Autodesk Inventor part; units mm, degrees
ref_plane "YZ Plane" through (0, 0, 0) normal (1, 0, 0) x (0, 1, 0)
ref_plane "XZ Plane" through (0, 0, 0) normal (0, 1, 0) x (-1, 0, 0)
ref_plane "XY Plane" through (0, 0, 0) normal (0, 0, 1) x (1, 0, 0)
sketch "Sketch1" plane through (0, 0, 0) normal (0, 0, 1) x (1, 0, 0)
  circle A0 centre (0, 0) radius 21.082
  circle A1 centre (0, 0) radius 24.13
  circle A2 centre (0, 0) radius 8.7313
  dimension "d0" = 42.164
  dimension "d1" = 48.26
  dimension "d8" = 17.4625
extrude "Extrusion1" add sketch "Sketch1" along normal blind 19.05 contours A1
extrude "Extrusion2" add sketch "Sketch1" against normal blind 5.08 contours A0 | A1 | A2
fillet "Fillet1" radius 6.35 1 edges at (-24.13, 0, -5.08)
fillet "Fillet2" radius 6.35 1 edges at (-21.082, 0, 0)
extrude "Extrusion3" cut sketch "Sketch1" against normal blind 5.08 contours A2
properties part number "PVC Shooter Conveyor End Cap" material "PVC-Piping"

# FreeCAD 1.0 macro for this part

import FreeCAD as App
import Part
import Sketcher

V = App.Vector
Q = App.Units.Quantity


def edges_at(feature, points):
    """Names of the edges that pass closest to the given points."""
    edges = feature.Shape.Edges
    near = lambda p: min(range(len(edges)), key=lambda i: edges[i].distToShape(Part.Vertex(*p))[0])
    return sorted({f"Edge{near(p) + 1}" for p in points})

doc = App.newDocument("Part")
body = doc.addObject("PartDesign::Body", "Body")

# Sketch on XY plane
sketch1 = body.newObject("Sketcher::SketchObject", "Sketch")
sketch1.AttachmentSupport = (doc.getObject("XY_Plane"), [""])
sketch1.MapMode = "FlatFace"
sketch1.addGeometry([
    Part.Circle(V(0, 0, 0), V(0, 0, 1), 24),
    Part.Circle(V(0, 0, 0), V(0, 0, 1), 21),
], False)
sketch1.addConstraint([
    Sketcher.Constraint("Coincident", 0, 3, -1, 1),
    Sketcher.Constraint("Coincident", 1, 3, -1, 1),
    Sketcher.Constraint("Diameter", 0, Q("1.9 in")),
    Sketcher.Constraint("Diameter", 1, Q("1.66 in")),
])
pad1 = body.newObject("PartDesign::Pad", "Pad")
pad1.Profile = sketch1
pad1.Length = Q("0.75 in")

# Sketch on XY plane
sketch2 = body.newObject("Sketcher::SketchObject", "Sketch001")
sketch2.AttachmentSupport = (doc.getObject("XY_Plane"), [""])
sketch2.MapMode = "FlatFace"
sketch2.addGeometry(Part.Circle(V(0, 0, 0), V(0, 0, 1), 24), False)
sketch2.addConstraint([
    Sketcher.Constraint("Coincident", 0, 3, -1, 1),
    Sketcher.Constraint("Diameter", 0, Q("1.9 in")),
])
pad2 = body.newObject("PartDesign::Pad", "Pad001")
pad2.Profile = sketch2
pad2.Length = Q("0.2 in")
pad2.Reversed = True
doc.recompute()

fillet = body.newObject("PartDesign::Fillet", "Fillet")
fillet.Base = (pad2, edges_at(pad2, [(-24.13, 0, -5.08)]))
fillet.Radius = Q("0.25 in")
doc.recompute()

fillet2 = body.newObject("PartDesign::Fillet", "Fillet001")
fillet2.Base = (fillet, edges_at(fillet, [(-21.082, 0, 0)]))
fillet2.Radius = Q("0.25 in")

# Sketch on XY plane
sketch3 = body.newObject("Sketcher::SketchObject", "Sketch002")
sketch3.AttachmentSupport = (doc.getObject("XY_Plane"), [""])
sketch3.MapMode = "FlatFace"
sketch3.addGeometry(Part.Circle(V(0, 0, 0), V(0, 0, 1), 9), False)
sketch3.addConstraint([
    Sketcher.Constraint("Coincident", 0, 3, -1, 1),
    Sketcher.Constraint("Diameter", 0, Q("0.6875 in")),
])
pocket1 = body.newObject("PartDesign::Pocket", "Pocket")
pocket1.Profile = sketch3
pocket1.Length = Q("0.2 in")

doc.recompute()
